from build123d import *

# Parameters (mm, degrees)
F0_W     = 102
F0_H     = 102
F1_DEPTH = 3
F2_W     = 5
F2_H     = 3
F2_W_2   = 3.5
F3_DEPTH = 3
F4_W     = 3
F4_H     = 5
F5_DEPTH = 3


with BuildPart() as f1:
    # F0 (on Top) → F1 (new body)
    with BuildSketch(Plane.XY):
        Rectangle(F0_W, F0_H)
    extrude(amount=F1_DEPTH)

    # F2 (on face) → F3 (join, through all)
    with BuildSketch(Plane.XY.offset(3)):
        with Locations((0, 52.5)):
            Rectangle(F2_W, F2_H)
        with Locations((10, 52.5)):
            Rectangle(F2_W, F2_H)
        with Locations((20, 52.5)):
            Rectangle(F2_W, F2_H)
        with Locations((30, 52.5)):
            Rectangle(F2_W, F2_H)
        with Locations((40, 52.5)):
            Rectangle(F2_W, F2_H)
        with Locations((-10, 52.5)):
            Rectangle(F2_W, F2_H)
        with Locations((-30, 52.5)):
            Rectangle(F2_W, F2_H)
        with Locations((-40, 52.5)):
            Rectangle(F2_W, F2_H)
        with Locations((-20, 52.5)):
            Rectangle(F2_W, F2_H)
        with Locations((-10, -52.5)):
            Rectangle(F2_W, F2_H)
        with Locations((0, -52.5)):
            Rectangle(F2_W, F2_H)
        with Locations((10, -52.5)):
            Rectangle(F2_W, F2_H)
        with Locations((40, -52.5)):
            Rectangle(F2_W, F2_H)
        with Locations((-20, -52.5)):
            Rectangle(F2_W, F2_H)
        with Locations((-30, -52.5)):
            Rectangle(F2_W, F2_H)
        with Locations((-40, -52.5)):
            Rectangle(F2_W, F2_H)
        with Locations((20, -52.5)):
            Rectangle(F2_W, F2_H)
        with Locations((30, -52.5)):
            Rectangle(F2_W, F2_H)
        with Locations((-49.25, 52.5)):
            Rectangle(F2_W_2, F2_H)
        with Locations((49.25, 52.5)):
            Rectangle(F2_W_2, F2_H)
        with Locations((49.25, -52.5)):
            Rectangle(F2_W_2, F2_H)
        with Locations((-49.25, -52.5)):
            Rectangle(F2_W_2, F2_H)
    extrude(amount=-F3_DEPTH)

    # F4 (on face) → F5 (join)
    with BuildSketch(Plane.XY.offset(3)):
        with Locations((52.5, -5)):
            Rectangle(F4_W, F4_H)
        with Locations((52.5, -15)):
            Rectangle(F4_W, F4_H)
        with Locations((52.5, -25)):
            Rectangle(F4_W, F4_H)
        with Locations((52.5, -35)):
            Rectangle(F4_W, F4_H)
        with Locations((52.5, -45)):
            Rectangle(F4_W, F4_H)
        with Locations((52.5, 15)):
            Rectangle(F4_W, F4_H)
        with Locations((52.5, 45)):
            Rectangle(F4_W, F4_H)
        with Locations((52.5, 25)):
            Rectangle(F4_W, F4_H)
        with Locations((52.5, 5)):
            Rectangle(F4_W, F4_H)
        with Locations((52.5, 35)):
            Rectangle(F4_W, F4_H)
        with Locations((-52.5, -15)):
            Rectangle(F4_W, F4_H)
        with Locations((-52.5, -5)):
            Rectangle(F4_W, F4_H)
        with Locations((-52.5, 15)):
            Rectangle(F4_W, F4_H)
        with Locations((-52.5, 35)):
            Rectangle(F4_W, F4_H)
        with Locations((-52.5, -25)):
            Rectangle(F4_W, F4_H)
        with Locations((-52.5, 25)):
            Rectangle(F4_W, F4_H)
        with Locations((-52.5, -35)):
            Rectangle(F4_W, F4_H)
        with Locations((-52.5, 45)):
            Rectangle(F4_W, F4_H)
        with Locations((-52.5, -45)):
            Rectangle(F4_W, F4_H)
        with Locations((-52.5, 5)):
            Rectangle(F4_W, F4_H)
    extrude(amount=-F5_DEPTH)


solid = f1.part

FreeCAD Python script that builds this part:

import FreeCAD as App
import Part
import Sketcher


def add_polygon(sketch, points):
    """Adds a closed chain of lines whose ends are joined by coincident constraints."""
    first, n = sketch.GeometryCount, len(points)
    for a, b in zip(points, points[1:] + points[:1]):
        sketch.addGeometry(Part.LineSegment(App.Vector(*a, 0), App.Vector(*b, 0)), False)
    for i in range(n):
        sketch.addConstraint(Sketcher.Constraint("Coincident", first + i, 2, first + (i + 1) % n, 1))

doc = App.newDocument("Part")
body = doc.addObject("PartDesign::Body", "Body")

# Sketch on XY plane
sketch1 = doc.addObject("Sketcher::SketchObject", "Sketch")
body.addObject(sketch1)
sketch1.AttachmentSupport = (doc.XY_Plane, [""])
sketch1.MapMode = "FlatFace"
add_polygon(sketch1, [(-51, 51), (-51, -51), (51, -51), (51, 51)])  # lines 0-3
sketch1.addConstraint([
    Sketcher.Constraint("Vertical", 0),
    Sketcher.Constraint("Horizontal", 1),
    Sketcher.Constraint("Vertical", 2),
    Sketcher.Constraint("Horizontal", 3),
    Sketcher.Constraint("Symmetric", 0, 2, 2, 2, -1, 1),
    Sketcher.Constraint("Equal", 3, 0),
    Sketcher.Constraint("DistanceX", 1, 1, 1, 2, 102.0),
])
pad1 = doc.addObject("PartDesign::Pad", "Pad")
body.addObject(pad1)
pad1.Profile = sketch1
pad1.Length = 3

# Sketch on XY plane
sketch2 = doc.addObject("Sketcher::SketchObject", "Sketch001")
body.addObject(sketch2)
sketch2.AttachmentSupport = (doc.XY_Plane, [""])
sketch2.MapMode = "FlatFace"
sketch2.AttachmentOffset = App.Placement(App.Vector(0, 0, 3), App.Rotation())
add_polygon(sketch2, [(-2.5, 54), (-2.5, 51), (2.5, 51), (2.5, 54)])  # lines 0-3
add_polygon(sketch2, [(7.5, 54), (7.5, 51), (12.5, 51), (12.5, 54)])  # lines 4-7
add_polygon(sketch2, [(17.5, 54), (17.5, 51), (22.5, 51), (22.5, 54)])  # lines 8-11
add_polygon(sketch2, [(27.5, 54), (27.5, 51), (32.5, 51), (32.5, 54)])  # lines 12-15
add_polygon(sketch2, [(37.5, 54), (37.5, 51), (42.5, 51), (42.5, 54)])  # lines 16-19
add_polygon(sketch2, [(-12.5, 54), (-12.5, 51), (-7.5, 51), (-7.5, 54)])  # lines 20-23
add_polygon(sketch2, [(-32.5, 54), (-32.5, 51), (-27.5, 51), (-27.5, 54)])  # lines 24-27
add_polygon(sketch2, [(-42.5, 54), (-42.5, 51), (-37.5, 51), (-37.5, 54)])  # lines 28-31
add_polygon(sketch2, [(-22.5, 54), (-22.5, 51), (-17.5, 51), (-17.5, 54)])  # lines 32-35
add_polygon(sketch2, [(-12.5, -51), (-12.5, -54), (-7.5, -54), (-7.5, -51)])  # lines 36-39
add_polygon(sketch2, [(-2.5, -51), (-2.5, -54), (2.5, -54), (2.5, -51)])  # lines 40-43
add_polygon(sketch2, [(7.5, -51), (7.5, -54), (12.5, -54), (12.5, -51)])  # lines 44-47
add_polygon(sketch2, [(37.5, -51), (37.5, -54), (42.5, -54), (42.5, -51)])  # lines 48-51
add_polygon(sketch2, [(-22.5, -51), (-22.5, -54), (-17.5, -54), (-17.5, -51)])  # lines 52-55
add_polygon(sketch2, [(-32.5, -51), (-32.5, -54), (-27.5, -54), (-27.5, -51)])  # lines 56-59
add_polygon(sketch2, [(-42.5, -51), (-42.5, -54), (-37.5, -54), (-37.5, -51)])  # lines 60-63
add_polygon(sketch2, [(17.5, -51), (17.5, -54), (22.5, -54), (22.5, -51)])  # lines 64-67
add_polygon(sketch2, [(27.5, -51), (27.5, -54), (32.5, -54), (32.5, -51)])  # lines 68-71
add_polygon(sketch2, [(-51, 54), (-51, 51), (-47.5, 51), (-47.5, 54)])  # lines 72-75
add_polygon(sketch2, [(47.5, 54), (47.5, 51), (51, 51), (51, 54)])  # lines 76-79
add_polygon(sketch2, [(47.5, -51), (47.5, -54), (51, -54), (51, -51)])  # lines 80-83
add_polygon(sketch2, [(-51, -51), (-51, -54), (-47.5, -54), (-47.5, -51)])  # lines 84-87
sketch2.addConstraint([
    Sketcher.Constraint("Vertical", 0),
    Sketcher.Constraint("Horizontal", 1),
    Sketcher.Constraint("Vertical", 2),
    Sketcher.Constraint("Horizontal", 3),
    Sketcher.Constraint("Vertical", 4),
    Sketcher.Constraint("Horizontal", 5),
    Sketcher.Constraint("Vertical", 6),
    Sketcher.Constraint("Horizontal", 7),
    Sketcher.Constraint("Vertical", 8),
    Sketcher.Constraint("Horizontal", 9),
    Sketcher.Constraint("Vertical", 10),
    Sketcher.Constraint("Horizontal", 11),
    Sketcher.Constraint("Vertical", 12),
    Sketcher.Constraint("Horizontal", 13),
    Sketcher.Constraint("Vertical", 14),
    Sketcher.Constraint("Horizontal", 15),
    Sketcher.Constraint("Vertical", 16),
    Sketcher.Constraint("Horizontal", 17),
    Sketcher.Constraint("Vertical", 18),
    Sketcher.Constraint("Horizontal", 19),
    Sketcher.Constraint("Vertical", 20),
    Sketcher.Constraint("Horizontal", 21),
    Sketcher.Constraint("Vertical", 22),
    Sketcher.Constraint("Horizontal", 23),
    Sketcher.Constraint("Vertical", 24),
    Sketcher.Constraint("Horizontal", 25),
    Sketcher.Constraint("Vertical", 26),
    Sketcher.Constraint("Horizontal", 27),
    Sketcher.Constraint("Vertical", 28),
    Sketcher.Constraint("Horizontal", 29),
    Sketcher.Constraint("Vertical", 30),
    Sketcher.Constraint("Horizontal", 31),
    Sketcher.Constraint("Vertical", 32),
    Sketcher.Constraint("Horizontal", 33),
    Sketcher.Constraint("Vertical", 34),
    Sketcher.Constraint("Horizontal", 35),
    Sketcher.Constraint("Vertical", 36),
    Sketcher.Constraint("Horizontal", 37),
    Sketcher.Constraint("Vertical", 38),
    Sketcher.Constraint("Horizontal", 39),
    Sketcher.Constraint("Vertical", 40),
    Sketcher.Constraint("Horizontal", 41),
    Sketcher.Constraint("Vertical", 42),
    Sketcher.Constraint("Horizontal", 43),
    Sketcher.Constraint("Vertical", 44),
    Sketcher.Constraint("Horizontal", 45),
    Sketcher.Constraint("Vertical", 46),
    Sketcher.Constraint("Horizontal", 47),
    Sketcher.Constraint("Vertical", 48),
    Sketcher.Constraint("Horizontal", 49),
    Sketcher.Constraint("Vertical", 50),
    Sketcher.Constraint("Horizontal", 51),
    Sketcher.Constraint("Vertical", 52),
    Sketcher.Constraint("Horizontal", 53),
    Sketcher.Constraint("Vertical", 54),
    Sketcher.Constraint("Horizontal", 55),
    Sketcher.Constraint("Vertical", 56),
    Sketcher.Constraint("Horizontal", 57),
    Sketcher.Constraint("Vertical", 58),
    Sketcher.Constraint("Horizontal", 59),
    Sketcher.Constraint("Vertical", 60),
    Sketcher.Constraint("Horizontal", 61),
    Sketcher.Constraint("Vertical", 62),
    Sketcher.Constraint("Horizontal", 63),
    Sketcher.Constraint("Vertical", 64),
    Sketcher.Constraint("Horizontal", 65),
    Sketcher.Constraint("Vertical", 66),
    Sketcher.Constraint("Horizontal", 67),
    Sketcher.Constraint("Vertical", 68),
    Sketcher.Constraint("Horizontal", 69),
    Sketcher.Constraint("Vertical", 70),
    Sketcher.Constraint("Horizontal", 71),
    Sketcher.Constraint("Vertical", 72),
    Sketcher.Constraint("Horizontal", 73),
    Sketcher.Constraint("Vertical", 74),
    Sketcher.Constraint("Horizontal", 75),
    Sketcher.Constraint("Vertical", 76),
    Sketcher.Constraint("Horizontal", 77),
    Sketcher.Constraint("Vertical", 78),
    Sketcher.Constraint("Horizontal", 79),
    Sketcher.Constraint("Vertical", 80),
    Sketcher.Constraint("Horizontal", 81),
    Sketcher.Constraint("Vertical", 82),
    Sketcher.Constraint("Horizontal", 83),
    Sketcher.Constraint("Vertical", 84),
    Sketcher.Constraint("Horizontal", 85),
    Sketcher.Constraint("Vertical", 86),
    Sketcher.Constraint("Horizontal", 87),
    Sketcher.Constraint("Symmetric", 6, 2, 36, 2, -1, 1),
    Sketcher.Constraint("Symmetric", 4, 2, 38, 2, -1, 1),
    Sketcher.Constraint("Symmetric", 2, 2, 40, 2, -1, 1),
    Sketcher.Constraint("Symmetric", 0, 2, 42, 2, -1, 1),
    Sketcher.Constraint("Symmetric", 22, 2, 44, 2, -1, 1),
    Sketcher.Constraint("Symmetric", 20, 2, 46, 2, -1, 1),
    Sketcher.Constraint("Symmetric", 30, 2, 48, 2, -1, 1),
    Sketcher.Constraint("Symmetric", 28, 2, 50, 2, -1, 1),
    Sketcher.Constraint("Symmetric", 10, 2, 52, 2, -1, 1),
    Sketcher.Constraint("Symmetric", 8, 2, 54, 2, -1, 1),
    Sketcher.Constraint("Symmetric", 14, 2, 56, 2, -1, 1),
    Sketcher.Constraint("Symmetric", 12, 2, 58, 2, -1, 1),
    Sketcher.Constraint("Symmetric", 18, 2, 60, 2, -1, 1),
    Sketcher.Constraint("Symmetric", 16, 2, 62, 2, -1, 1),
    Sketcher.Constraint("Symmetric", 34, 2, 64, 2, -1, 1),
    Sketcher.Constraint("Symmetric", 32, 2, 66, 2, -1, 1),
    Sketcher.Constraint("Symmetric", 26, 2, 68, 2, -1, 1),
    Sketcher.Constraint("Symmetric", 24, 2, 70, 2, -1, 1),
    Sketcher.Constraint("Symmetric", 74, 2, 80, 2, -1, 1),
    Sketcher.Constraint("Symmetric", 72, 2, 82, 2, -1, 1),
    Sketcher.Constraint("Symmetric", 78, 2, 84, 2, -1, 1),
    Sketcher.Constraint("Symmetric", 76, 2, 86, 2, -1, 1),
    Sketcher.Constraint("Symmetric", 5, 2, 20, 2, -2),
    Sketcher.Constraint("Symmetric", 7, 2, 22, 2, -2),
    Sketcher.Constraint("Symmetric", 13, 2, 24, 2, -2),
    Sketcher.Constraint("Symmetric", 15, 2, 26, 2, -2),
    Sketcher.Constraint("Symmetric", 17, 2, 28, 2, -2),
    Sketcher.Constraint("Symmetric", 19, 2, 30, 2, -2),
    Sketcher.Constraint("Symmetric", 9, 2, 32, 2, -2),
    Sketcher.Constraint("Symmetric", 11, 2, 34, 2, -2),
    Sketcher.Constraint("Symmetric", 73, 2, 76, 2, -2),
    Sketcher.Constraint("Symmetric", 75, 2, 78, 2, -2),
    Sketcher.Constraint("Horizontal", 1, 2, 4, 2),
    Sketcher.Constraint("Horizontal", 3, 2, 6, 2),
    Sketcher.Constraint("Horizontal", 5, 2, 8, 2),
    Sketcher.Constraint("Horizontal", 7, 2, 10, 2),
    Sketcher.Constraint("Horizontal", 9, 2, 12, 2),
    Sketcher.Constraint("Horizontal", 11, 2, 14, 2),
    Sketcher.Constraint("Horizontal", 13, 2, 16, 2),
    Sketcher.Constraint("Horizontal", 15, 2, 18, 2),
    Sketcher.Constraint("Horizontal", 33, 2, 72, 2),
    Sketcher.Constraint("Horizontal", 35, 2, 74, 2),
    Sketcher.Constraint("Vertical", 3, 2, 40, 2),
    Sketcher.Constraint("Equal", 3, 5),
    Sketcher.Constraint("Equal", 7, 9),
    Sketcher.Constraint("Equal", 11, 13),
    Sketcher.Constraint("Equal", 15, 17),
    Sketcher.Constraint("DistanceX", 1, 1, 1, 2, 5.0),
    Sketcher.Constraint("DistanceY", 0, 2, 0, 1, 3.0),
    Sketcher.Constraint("DistanceX", 73, 1, 73, 2, 3.5),
    Sketcher.Constraint("DistanceY", -1, 1, 0, 2, 51.0),
    Sketcher.Constraint("DistanceX", 72, 2, -1, 1, 51.0),
    Sketcher.Constraint("DistanceX", -1, 1, 4, 2, 7.5),
    Sketcher.Constraint("DistanceX", -1, 1, 8, 2, 17.5),
    Sketcher.Constraint("DistanceX", -1, 1, 12, 2, 27.5),
    Sketcher.Constraint("DistanceX", -1, 1, 16, 2, 37.5),
])
pad2 = doc.addObject("PartDesign::Pad", "Pad001")
body.addObject(pad2)
pad2.Profile = sketch2
pad2.Type = "UpToLast"
pad2.Reversed = True

# Sketch on XY plane
sketch3 = doc.addObject("Sketcher::SketchObject", "Sketch002")
body.addObject(sketch3)
sketch3.AttachmentSupport = (doc.XY_Plane, [""])
sketch3.MapMode = "FlatFace"
sketch3.AttachmentOffset = App.Placement(App.Vector(0, 0, 3), App.Rotation())
add_polygon(sketch3, [(51, -2.5), (51, -7.5), (54, -7.5), (54, -2.5)])  # lines 0-3
add_polygon(sketch3, [(51, -12.5), (51, -17.5), (54, -17.5), (54, -12.5)])  # lines 4-7
add_polygon(sketch3, [(51, -22.5), (51, -27.5), (54, -27.5), (54, -22.5)])  # lines 8-11
add_polygon(sketch3, [(51, -32.5), (51, -37.5), (54, -37.5), (54, -32.5)])  # lines 12-15
add_polygon(sketch3, [(51, -42.5), (51, -47.5), (54, -47.5), (54, -42.5)])  # lines 16-19
add_polygon(sketch3, [(51, 17.5), (51, 12.5), (54, 12.5), (54, 17.5)])  # lines 20-23
add_polygon(sketch3, [(51, 47.5), (51, 42.5), (54, 42.5), (54, 47.5)])  # lines 24-27
add_polygon(sketch3, [(51, 27.5), (51, 22.5), (54, 22.5), (54, 27.5)])  # lines 28-31
add_polygon(sketch3, [(51, 7.5), (51, 2.5), (54, 2.5), (54, 7.5)])  # lines 32-35
add_polygon(sketch3, [(51, 37.5), (51, 32.5), (54, 32.5), (54, 37.5)])  # lines 36-39
add_polygon(sketch3, [(-54, -12.5), (-54, -17.5), (-51, -17.5), (-51, -12.5)])  # lines 40-43
add_polygon(sketch3, [(-54, -2.5), (-54, -7.5), (-51, -7.5), (-51, -2.5)])  # lines 44-47
add_polygon(sketch3, [(-54, 17.5), (-54, 12.5), (-51, 12.5), (-51, 17.5)])  # lines 48-51
add_polygon(sketch3, [(-54, 37.5), (-54, 32.5), (-51, 32.5), (-51, 37.5)])  # lines 52-55
add_polygon(sketch3, [(-54, -22.5), (-54, -27.5), (-51, -27.5), (-51, -22.5)])  # lines 56-59
add_polygon(sketch3, [(-54, 27.5), (-54, 22.5), (-51, 22.5), (-51, 27.5)])  # lines 60-63
add_polygon(sketch3, [(-54, -32.5), (-54, -37.5), (-51, -37.5), (-51, -32.5)])  # lines 64-67
add_polygon(sketch3, [(-54, 47.5), (-54, 42.5), (-51, 42.5), (-51, 47.5)])  # lines 68-71
add_polygon(sketch3, [(-54, -42.5), (-54, -47.5), (-51, -47.5), (-51, -42.5)])  # lines 72-75
add_polygon(sketch3, [(-54, 7.5), (-54, 2.5), (-51, 2.5), (-51, 7.5)])  # lines 76-79
sketch3.addConstraint([
    Sketcher.Constraint("Vertical", 0),
    Sketcher.Constraint("Horizontal", 1),
    Sketcher.Constraint("Vertical", 2),
    Sketcher.Constraint("Horizontal", 3),
    Sketcher.Constraint("Vertical", 4),
    Sketcher.Constraint("Horizontal", 5),
    Sketcher.Constraint("Vertical", 6),
    Sketcher.Constraint("Horizontal", 7),
    Sketcher.Constraint("Vertical", 8),
    Sketcher.Constraint("Horizontal", 9),
    Sketcher.Constraint("Vertical", 10),
    Sketcher.Constraint("Horizontal", 11),
    Sketcher.Constraint("Vertical", 12),
    Sketcher.Constraint("Horizontal", 13),
    Sketcher.Constraint("Vertical", 14),
    Sketcher.Constraint("Horizontal", 15),
    Sketcher.Constraint("Vertical", 16),
    Sketcher.Constraint("Horizontal", 17),
    Sketcher.Constraint("Vertical", 18),
    Sketcher.Constraint("Horizontal", 19),
    Sketcher.Constraint("Vertical", 20),
    Sketcher.Constraint("Horizontal", 21),
    Sketcher.Constraint("Vertical", 22),
    Sketcher.Constraint("Horizontal", 23),
    Sketcher.Constraint("Vertical", 24),
    Sketcher.Constraint("Horizontal", 25),
    Sketcher.Constraint("Vertical", 26),
    Sketcher.Constraint("Horizontal", 27),
    Sketcher.Constraint("Vertical", 28),
    Sketcher.Constraint("Horizontal", 29),
    Sketcher.Constraint("Vertical", 30),
    Sketcher.Constraint("Horizontal", 31),
    Sketcher.Constraint("Vertical", 32),
    Sketcher.Constraint("Horizontal", 33),
    Sketcher.Constraint("Vertical", 34),
    Sketcher.Constraint("Horizontal", 35),
    Sketcher.Constraint("Vertical", 36),
    Sketcher.Constraint("Horizontal", 37),
    Sketcher.Constraint("Vertical", 38),
    Sketcher.Constraint("Horizontal", 39),
    Sketcher.Constraint("Vertical", 40),
    Sketcher.Constraint("Horizontal", 41),
    Sketcher.Constraint("Vertical", 42),
    Sketcher.Constraint("Horizontal", 43),
    Sketcher.Constraint("Vertical", 44),
    Sketcher.Constraint("Horizontal", 45),
    Sketcher.Constraint("Vertical", 46),
    Sketcher.Constraint("Horizontal", 47),
    Sketcher.Constraint("Vertical", 48),
    Sketcher.Constraint("Horizontal", 49),
    Sketcher.Constraint("Vertical", 50),
    Sketcher.Constraint("Horizontal", 51),
    Sketcher.Constraint("Vertical", 52),
    Sketcher.Constraint("Horizontal", 53),
    Sketcher.Constraint("Vertical", 54),
    Sketcher.Constraint("Horizontal", 55),
    Sketcher.Constraint("Vertical", 56),
    Sketcher.Constraint("Horizontal", 57),
    Sketcher.Constraint("Vertical", 58),
    Sketcher.Constraint("Horizontal", 59),
    Sketcher.Constraint("Vertical", 60),
    Sketcher.Constraint("Horizontal", 61),
    Sketcher.Constraint("Vertical", 62),
    Sketcher.Constraint("Horizontal", 63),
    Sketcher.Constraint("Vertical", 64),
    Sketcher.Constraint("Horizontal", 65),
    Sketcher.Constraint("Vertical", 66),
    Sketcher.Constraint("Horizontal", 67),
    Sketcher.Constraint("Vertical", 68),
    Sketcher.Constraint("Horizontal", 69),
    Sketcher.Constraint("Vertical", 70),
    Sketcher.Constraint("Horizontal", 71),
    Sketcher.Constraint("Vertical", 72),
    Sketcher.Constraint("Horizontal", 73),
    Sketcher.Constraint("Vertical", 74),
    Sketcher.Constraint("Horizontal", 75),
    Sketcher.Constraint("Vertical", 76),
    Sketcher.Constraint("Horizontal", 77),
    Sketcher.Constraint("Vertical", 78),
    Sketcher.Constraint("Horizontal", 79),
    Sketcher.Constraint("Symmetric", 22, 2, 40, 2, -1, 1),
    Sketcher.Constraint("Symmetric", 20, 2, 42, 2, -1, 1),
    Sketcher.Constraint("Symmetric", 34, 2, 44, 2, -1, 1),
    Sketcher.Constraint("Symmetric", 32, 2, 46, 2, -1, 1),
    Sketcher.Constraint("Symmetric", 6, 2, 48, 2, -1, 1),
    Sketcher.Constraint("Symmetric", 4, 2, 50, 2, -1, 1),
    Sketcher.Constraint("Symmetric", 14, 2, 52, 2, -1, 1),
    Sketcher.Constraint("Symmetric", 12, 2, 54, 2, -1, 1),
    Sketcher.Constraint("Symmetric", 30, 2, 56, 2, -1, 1),
    Sketcher.Constraint("Symmetric", 28, 2, 58, 2, -1, 1),
    Sketcher.Constraint("Symmetric", 10, 2, 60, 2, -1, 1),
    Sketcher.Constraint("Symmetric", 8, 2, 62, 2, -1, 1),
    Sketcher.Constraint("Symmetric", 38, 2, 64, 2, -1, 1),
    Sketcher.Constraint("Symmetric", 36, 2, 66, 2, -1, 1),
    Sketcher.Constraint("Symmetric", 18, 2, 68, 2, -1, 1),
    Sketcher.Constraint("Symmetric", 16, 2, 70, 2, -1, 1),
    Sketcher.Constraint("Symmetric", 26, 2, 72, 2, -1, 1),
    Sketcher.Constraint("Symmetric", 24, 2, 74, 2, -1, 1),
    Sketcher.Constraint("Symmetric", 2, 2, 76, 2, -1, 1),
    Sketcher.Constraint("Symmetric", 0, 2, 78, 2, -1, 1),
    Sketcher.Constraint("Symmetric", 5, 2, 40, 2, -2),
    Sketcher.Constraint("Symmetric", 7, 2, 42, 2, -2),
    Sketcher.Constraint("Symmetric", 1, 2, 44, 2, -2),
    Sketcher.Constraint("Symmetric", 3, 2, 46, 2, -2),
    Sketcher.Constraint("Symmetric", 37, 2, 52, 2, -2),
    Sketcher.Constraint("Symmetric", 39, 2, 54, 2, -2),
    Sketcher.Constraint("Symmetric", 9, 2, 56, 2, -2),
    Sketcher.Constraint("Symmetric", 11, 2, 58, 2, -2),
    Sketcher.Constraint("Symmetric", 25, 2, 68, 2, -2),
    Sketcher.Constraint("Symmetric", 27, 2, 70, 2, -2),
    Sketcher.Constraint("Vertical", 3, 2, 4, 2),
    Sketcher.Constraint("Vertical", 2, 2, 5, 2),
    Sketcher.Constraint("Vertical", 7, 2, 8, 2),
    Sketcher.Constraint("Vertical", 6, 2, 9, 2),
    Sketcher.Constraint("Vertical", 11, 2, 12, 2),
    Sketcher.Constraint("Vertical", 10, 2, 13, 2),
    Sketcher.Constraint("Vertical", 15, 2, 16, 2),
    Sketcher.Constraint("Vertical", 14, 2, 17, 2),
    Sketcher.Constraint("Equal", 2, 4),
    Sketcher.Constraint("Equal", 6, 8),
    Sketcher.Constraint("Equal", 10, 12),
    Sketcher.Constraint("Equal", 14, 16),
    Sketcher.Constraint("DistanceX", 1, 1, 1, 2, 3.0),
    Sketcher.Constraint("DistanceY", 0, 2, 0, 1, 5.0),
    Sketcher.Constraint("DistanceX", -1, 1, 0, 2, 51.0),
    Sketcher.Constraint("DistanceY", 0, 2, -1, 1, 7.5),
    Sketcher.Constraint("DistanceY", 4, 2, -1, 1, 17.5),
    Sketcher.Constraint("DistanceY", 8, 2, -1, 1, 27.5),
    Sketcher.Constraint("DistanceY", 12, 2, -1, 1, 37.5),
    Sketcher.Constraint("DistanceY", 16, 2, -1, 1, 47.5),
])
pad3 = doc.addObject("PartDesign::Pad", "Pad002")
body.addObject(pad3)
pad3.Profile = sketch3
pad3.Length = 3
pad3.Reversed = True

doc.recompute()
